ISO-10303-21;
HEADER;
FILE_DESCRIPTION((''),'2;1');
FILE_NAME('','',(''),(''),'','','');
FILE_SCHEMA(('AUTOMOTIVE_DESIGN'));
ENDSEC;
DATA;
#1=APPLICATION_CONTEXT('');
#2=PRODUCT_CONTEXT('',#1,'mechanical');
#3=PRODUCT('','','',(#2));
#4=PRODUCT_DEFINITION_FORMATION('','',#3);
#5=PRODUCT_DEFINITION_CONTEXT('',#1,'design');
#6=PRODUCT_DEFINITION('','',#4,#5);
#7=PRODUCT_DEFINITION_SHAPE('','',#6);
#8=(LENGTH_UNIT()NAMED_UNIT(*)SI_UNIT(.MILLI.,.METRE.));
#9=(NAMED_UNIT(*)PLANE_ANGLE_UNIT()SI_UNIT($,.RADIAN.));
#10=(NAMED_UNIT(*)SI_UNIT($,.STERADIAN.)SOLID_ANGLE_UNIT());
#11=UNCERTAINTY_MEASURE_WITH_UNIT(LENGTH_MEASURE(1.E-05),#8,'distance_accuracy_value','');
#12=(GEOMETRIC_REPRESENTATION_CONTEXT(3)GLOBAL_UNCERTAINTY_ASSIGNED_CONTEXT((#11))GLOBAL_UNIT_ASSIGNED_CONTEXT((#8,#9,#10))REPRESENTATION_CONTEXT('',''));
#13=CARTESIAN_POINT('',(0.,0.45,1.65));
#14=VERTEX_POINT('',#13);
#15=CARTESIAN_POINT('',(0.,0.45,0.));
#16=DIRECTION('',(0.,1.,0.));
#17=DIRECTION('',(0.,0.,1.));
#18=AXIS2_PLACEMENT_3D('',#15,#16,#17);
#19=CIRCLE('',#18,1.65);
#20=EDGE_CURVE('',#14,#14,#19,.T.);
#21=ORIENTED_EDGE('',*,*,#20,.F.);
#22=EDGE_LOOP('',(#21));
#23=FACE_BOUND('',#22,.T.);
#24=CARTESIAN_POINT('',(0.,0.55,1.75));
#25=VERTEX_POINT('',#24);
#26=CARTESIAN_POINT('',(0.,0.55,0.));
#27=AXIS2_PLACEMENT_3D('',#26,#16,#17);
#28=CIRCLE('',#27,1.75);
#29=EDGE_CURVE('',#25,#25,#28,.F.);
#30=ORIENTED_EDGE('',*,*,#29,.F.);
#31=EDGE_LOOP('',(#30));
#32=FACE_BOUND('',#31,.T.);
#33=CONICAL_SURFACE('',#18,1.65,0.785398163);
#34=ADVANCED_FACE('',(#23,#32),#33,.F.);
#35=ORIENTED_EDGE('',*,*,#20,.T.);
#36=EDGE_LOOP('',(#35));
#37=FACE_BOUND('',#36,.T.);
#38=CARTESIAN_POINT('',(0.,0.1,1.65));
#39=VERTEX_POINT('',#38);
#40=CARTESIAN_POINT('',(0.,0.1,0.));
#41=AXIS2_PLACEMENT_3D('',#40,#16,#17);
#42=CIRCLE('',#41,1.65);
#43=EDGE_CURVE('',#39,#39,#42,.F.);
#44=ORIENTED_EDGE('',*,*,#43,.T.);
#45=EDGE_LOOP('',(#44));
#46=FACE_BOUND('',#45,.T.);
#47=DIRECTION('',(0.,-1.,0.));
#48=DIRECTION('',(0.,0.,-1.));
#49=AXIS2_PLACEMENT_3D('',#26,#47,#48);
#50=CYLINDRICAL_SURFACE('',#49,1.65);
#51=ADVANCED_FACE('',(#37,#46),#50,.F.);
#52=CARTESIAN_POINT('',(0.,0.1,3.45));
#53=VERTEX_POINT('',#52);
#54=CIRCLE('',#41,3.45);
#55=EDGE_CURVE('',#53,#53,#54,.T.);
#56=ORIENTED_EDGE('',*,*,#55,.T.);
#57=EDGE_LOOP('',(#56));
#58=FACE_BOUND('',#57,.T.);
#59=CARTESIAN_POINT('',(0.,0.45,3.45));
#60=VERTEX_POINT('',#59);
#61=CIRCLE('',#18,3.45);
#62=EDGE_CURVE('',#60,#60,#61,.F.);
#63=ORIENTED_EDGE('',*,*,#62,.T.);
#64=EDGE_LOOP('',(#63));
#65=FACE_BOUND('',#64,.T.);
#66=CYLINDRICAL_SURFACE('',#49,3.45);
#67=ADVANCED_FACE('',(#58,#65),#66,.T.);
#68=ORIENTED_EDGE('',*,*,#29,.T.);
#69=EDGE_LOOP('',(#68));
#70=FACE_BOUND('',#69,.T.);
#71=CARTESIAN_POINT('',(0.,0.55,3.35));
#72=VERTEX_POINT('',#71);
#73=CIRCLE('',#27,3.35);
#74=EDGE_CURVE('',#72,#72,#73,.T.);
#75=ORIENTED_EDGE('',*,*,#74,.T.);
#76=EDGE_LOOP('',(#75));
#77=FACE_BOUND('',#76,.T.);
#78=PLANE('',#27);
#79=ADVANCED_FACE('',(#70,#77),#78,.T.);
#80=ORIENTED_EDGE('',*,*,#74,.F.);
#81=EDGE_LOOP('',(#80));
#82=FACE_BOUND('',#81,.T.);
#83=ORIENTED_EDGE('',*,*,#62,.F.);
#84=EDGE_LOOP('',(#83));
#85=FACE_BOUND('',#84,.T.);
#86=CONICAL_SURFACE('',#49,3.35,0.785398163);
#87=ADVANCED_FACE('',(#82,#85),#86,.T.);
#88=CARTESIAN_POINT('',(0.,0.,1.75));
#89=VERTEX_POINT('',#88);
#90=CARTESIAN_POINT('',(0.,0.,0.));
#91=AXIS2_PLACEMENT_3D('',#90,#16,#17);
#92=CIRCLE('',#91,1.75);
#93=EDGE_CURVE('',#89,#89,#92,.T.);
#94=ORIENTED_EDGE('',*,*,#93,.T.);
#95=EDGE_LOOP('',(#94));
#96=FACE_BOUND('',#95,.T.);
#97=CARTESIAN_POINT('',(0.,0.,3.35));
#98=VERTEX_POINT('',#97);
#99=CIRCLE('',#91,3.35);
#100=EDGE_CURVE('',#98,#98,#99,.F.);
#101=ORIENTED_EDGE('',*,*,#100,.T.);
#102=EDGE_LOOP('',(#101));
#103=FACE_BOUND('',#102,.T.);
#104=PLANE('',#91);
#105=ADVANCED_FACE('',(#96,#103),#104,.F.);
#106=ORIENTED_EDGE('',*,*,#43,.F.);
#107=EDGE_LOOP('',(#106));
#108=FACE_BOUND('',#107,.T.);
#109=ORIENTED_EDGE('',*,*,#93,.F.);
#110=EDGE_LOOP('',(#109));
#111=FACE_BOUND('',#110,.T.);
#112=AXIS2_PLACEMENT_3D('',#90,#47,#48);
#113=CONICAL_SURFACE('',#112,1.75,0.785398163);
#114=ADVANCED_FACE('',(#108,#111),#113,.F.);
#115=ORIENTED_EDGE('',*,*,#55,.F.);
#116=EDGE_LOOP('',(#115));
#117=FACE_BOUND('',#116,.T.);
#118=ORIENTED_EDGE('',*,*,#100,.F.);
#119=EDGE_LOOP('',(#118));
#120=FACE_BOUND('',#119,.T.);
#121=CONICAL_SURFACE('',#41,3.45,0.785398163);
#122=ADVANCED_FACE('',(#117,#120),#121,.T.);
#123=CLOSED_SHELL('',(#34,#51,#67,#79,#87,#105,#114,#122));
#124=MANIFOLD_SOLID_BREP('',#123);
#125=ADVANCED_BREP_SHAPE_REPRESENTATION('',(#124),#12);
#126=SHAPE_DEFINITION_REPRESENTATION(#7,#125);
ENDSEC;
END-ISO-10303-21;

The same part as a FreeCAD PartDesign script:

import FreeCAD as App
import Part
import Sketcher


def edges_at(feature, points):
    """Names of the edges that pass closest to the given points."""
    edges = feature.Shape.Edges
    near = lambda p: min(range(len(edges)), key=lambda i: edges[i].distToShape(Part.Vertex(*p))[0])
    return sorted({f"Edge{near(p) + 1}" for p in points})

doc = App.newDocument("Part")
body = doc.addObject("PartDesign::Body", "Body")

sketch1 = body.newObject("Sketcher::SketchObject", "Sketch")
sketch1.AttachmentSupport = (doc.getObject("XZ_Plane"), [""])
sketch1.MapMode = "FlatFace"
sketch1.addGeometry([
    Part.Circle(App.Vector(0, 0, 0), App.Vector(0, 0, 1), 3.45),
    Part.Circle(App.Vector(0, 0, 0), App.Vector(0, 0, 1), 1.65),
], False)
sketch1.addConstraint([
    Sketcher.Constraint("Coincident", 0, 3, -1, 1),
    Sketcher.Constraint("Coincident", 1, 3, -1, 1),
    Sketcher.Constraint("Diameter", 0, 6.9),
    Sketcher.Constraint("Diameter", 1, 3.3),
])
pad1 = body.newObject("PartDesign::Pad", "Pad")
pad1.Profile = sketch1
pad1.Length = 0.55
pad1.Reversed = True
doc.recompute()

chamfer = body.newObject("PartDesign::Chamfer", "Chamfer")
chamfer.Base = (pad1, edges_at(pad1, [
    (-3.45, 0, 0),
    (-3.45, 0.55, 0),
    (-1.65, 0, 0),
    (-1.65, 0.55, 0),
]))
chamfer.Size = 0.1

doc.recompute()
